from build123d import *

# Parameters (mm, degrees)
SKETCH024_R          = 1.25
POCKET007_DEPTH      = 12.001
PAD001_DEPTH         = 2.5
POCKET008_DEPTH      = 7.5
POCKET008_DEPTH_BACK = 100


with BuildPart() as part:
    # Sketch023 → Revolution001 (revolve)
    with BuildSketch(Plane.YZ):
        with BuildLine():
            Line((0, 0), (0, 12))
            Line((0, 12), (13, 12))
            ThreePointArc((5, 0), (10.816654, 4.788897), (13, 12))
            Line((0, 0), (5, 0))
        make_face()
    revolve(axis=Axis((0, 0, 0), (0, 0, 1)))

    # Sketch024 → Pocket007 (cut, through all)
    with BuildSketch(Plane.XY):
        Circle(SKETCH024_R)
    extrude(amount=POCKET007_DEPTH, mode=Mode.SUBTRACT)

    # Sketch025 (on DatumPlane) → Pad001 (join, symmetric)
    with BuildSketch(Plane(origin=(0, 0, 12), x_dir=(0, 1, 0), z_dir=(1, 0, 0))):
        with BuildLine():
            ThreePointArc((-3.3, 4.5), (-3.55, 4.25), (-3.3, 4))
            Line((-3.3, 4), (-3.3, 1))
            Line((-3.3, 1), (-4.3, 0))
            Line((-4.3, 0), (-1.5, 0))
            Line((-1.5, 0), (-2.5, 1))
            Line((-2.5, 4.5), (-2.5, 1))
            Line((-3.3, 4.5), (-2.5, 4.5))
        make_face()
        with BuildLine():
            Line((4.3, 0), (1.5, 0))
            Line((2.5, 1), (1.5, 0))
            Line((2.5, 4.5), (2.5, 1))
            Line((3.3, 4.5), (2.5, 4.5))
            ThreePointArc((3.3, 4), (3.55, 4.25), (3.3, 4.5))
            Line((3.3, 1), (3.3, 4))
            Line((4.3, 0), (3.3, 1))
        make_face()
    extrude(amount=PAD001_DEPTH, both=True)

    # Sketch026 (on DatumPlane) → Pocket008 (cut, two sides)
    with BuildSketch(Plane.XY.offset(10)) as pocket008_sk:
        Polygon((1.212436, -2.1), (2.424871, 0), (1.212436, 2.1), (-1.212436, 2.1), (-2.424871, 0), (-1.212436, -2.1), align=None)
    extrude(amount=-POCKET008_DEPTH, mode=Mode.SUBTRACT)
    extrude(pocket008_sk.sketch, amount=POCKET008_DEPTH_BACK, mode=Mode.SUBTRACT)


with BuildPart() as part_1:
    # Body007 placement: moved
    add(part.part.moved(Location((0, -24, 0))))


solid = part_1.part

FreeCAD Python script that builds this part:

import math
import FreeCAD as App
import Part
import Sketcher

V = App.Vector
Q = App.Units.Quantity


def add_polygon(sketch, points):
    """Adds a closed chain of lines whose ends are joined by coincident constraints."""
    first, n = sketch.GeometryCount, len(points)
    for a, b in zip(points, points[1:] + points[:1]):
        sketch.addGeometry(Part.LineSegment(App.Vector(*a, 0), App.Vector(*b, 0)), False)
    for i in range(n):
        sketch.addConstraint(Sketcher.Constraint("Coincident", first + i, 2, first + (i + 1) % n, 1))

doc = App.newDocument("Part")
body = doc.addObject("PartDesign::Body", "Body")

# Sketch on YZ plane
sketch1 = body.newObject("Sketcher::SketchObject", "Sketch")
sketch1.AttachmentSupport = (doc.getObject("YZ_Plane"), [""])
sketch1.MapMode = "FlatFace"
sketch1.addGeometry(Part.LineSegment(V(0, 12, 0), V(0, 0, 0)), False)
sketch1.addGeometry(Part.LineSegment(V(0, 0, 0), V(5, 0, 0)), False)
sketch1.addGeometry(Part.ArcOfCircle(Part.Circle(V(0, 12, 0), V(0, 0, 1), 13), math.radians(-67), math.radians(0)), False)
sketch1.addGeometry(Part.LineSegment(V(13, 12, 0), V(0, 12, 0)), False)
sketch1.addConstraint(Sketcher.Constraint("Coincident", 0, 2, 1, 1))
sketch1.addConstraint(Sketcher.Constraint("Coincident", 1, 2, 2, 1))
sketch1.addConstraint(Sketcher.Constraint("Coincident", 2, 2, 3, 1))
sketch1.addConstraint(Sketcher.Constraint("Coincident", 3, 2, 0, 1))
sketch1.addConstraint(Sketcher.Constraint("Vertical", 0))
sketch1.addConstraint(Sketcher.Constraint("Horizontal", 1))
sketch1.addConstraint(Sketcher.Constraint("Horizontal", 3))
sketch1.addConstraint(Sketcher.Constraint("Coincident", 0, 2, -1, 1))
sketch1.addConstraint(Sketcher.Constraint("Coincident", 3, 2, 2, 3))
sketch1.addConstraint(Sketcher.Constraint("Radius", 2, 12.999998))
sketch1.addConstraint(Sketcher.Constraint("DistanceX", 1, 1, 1, 2, 5.0))
revolution = body.newObject("PartDesign::Revolution", "Revolution")
revolution.Profile = sketch1
revolution.ReferenceAxis = (sketch1, ["V_Axis"])
revolution.Angle = 360

# Sketch on XY plane
sketch2 = body.newObject("Sketcher::SketchObject", "Sketch001")
sketch2.AttachmentSupport = (doc.getObject("XY_Plane"), [""])
sketch2.MapMode = "FlatFace"
sketch2.addGeometry(Part.Circle(V(0, 0, 0), V(0, 0, 1), 1.2), False)
sketch2.addConstraint(Sketcher.Constraint("Coincident", 0, 3, -1, 1))
sketch2.addConstraint(Sketcher.Constraint("Diameter", 0, 2.5))
pocket1 = body.newObject("PartDesign::Pocket", "Pocket")
pocket1.Profile = sketch2
pocket1.Type = "ThroughAll"
pocket1.Reversed = True

# Sketch on YZ plane
sketch3 = body.newObject("Sketcher::SketchObject", "Sketch002")
sketch3.AttachmentSupport = (doc.getObject("YZ_Plane"), [""])
sketch3.MapMode = "FlatFace"
sketch3.addGeometry(Part.ArcOfCircle(Part.Circle(V(-3.3, 16.25, 0), V(0, 0, 1), 0.25), math.radians(90), math.radians(270)), False)
sketch3.addGeometry(Part.LineSegment(V(-3.3, 16, 0), V(-3.3, 13, 0)), False)
sketch3.addGeometry(Part.LineSegment(V(-3.3, 13, 0), V(-4.3, 12, 0)), False)
sketch3.addGeometry(Part.LineSegment(V(-4.3, 12, 0), V(-1.5, 12, 0)), False)
sketch3.addGeometry(Part.LineSegment(V(-1.5, 12, 0), V(-2.5, 13, 0)), False)
sketch3.addGeometry(Part.LineSegment(V(-2.5, 13, 0), V(-2.5, 16.5, 0)), False)
sketch3.addGeometry(Part.LineSegment(V(-2.5, 16.5, 0), V(-3.3, 16.5, 0)), False)
sketch3.addGeometry(Part.LineSegment(V(1.5, 12, 0), V(4.3, 12, 0)), False)
sketch3.addGeometry(Part.LineSegment(V(4.3, 12, 0), V(3.3, 13, 0)), False)
sketch3.addGeometry(Part.LineSegment(V(3.3, 13, 0), V(3.3, 16, 0)), False)
sketch3.addGeometry(Part.ArcOfCircle(Part.Circle(V(3.3, 16.25, 0), V(0, 0, 1), 0.25), math.radians(-90), math.radians(90)), False)
sketch3.addGeometry(Part.LineSegment(V(3.3, 16.5, 0), V(2.5, 16.5, 0)), False)
sketch3.addGeometry(Part.LineSegment(V(2.5, 16.5, 0), V(2.5, 13, 0)), False)
sketch3.addGeometry(Part.LineSegment(V(2.5, 13, 0), V(1.5, 12, 0)), False)
sketch3.addConstraint(Sketcher.Constraint("Coincident", 0, 2, 1, 1))
sketch3.addConstraint(Sketcher.Constraint("Coincident", 1, 2, 2, 1))
sketch3.addConstraint(Sketcher.Constraint("Coincident", 2, 2, 3, 1))
sketch3.addConstraint(Sketcher.Constraint("Coincident", 3, 2, 4, 1))
sketch3.addConstraint(Sketcher.Constraint("Coincident", 4, 2, 5, 1))
sketch3.addConstraint(Sketcher.Constraint("Coincident", 5, 2, 6, 1))
sketch3.addConstraint(Sketcher.Constraint("Tangent", 6, 2, 0, 1))
sketch3.addConstraint(Sketcher.Constraint("Coincident", 7, 2, 8, 1))
sketch3.addConstraint(Sketcher.Constraint("Coincident", 8, 2, 9, 1))
sketch3.addConstraint(Sketcher.Constraint("Coincident", 9, 2, 10, 1))
sketch3.addConstraint(Sketcher.Constraint("Tangent", 10, 2, 11, 1))
sketch3.addConstraint(Sketcher.Constraint("Coincident", 11, 2, 12, 1))
sketch3.addConstraint(Sketcher.Constraint("Coincident", 12, 2, 13, 1))
sketch3.addConstraint(Sketcher.Constraint("Coincident", 13, 2, 7, 1))
sketch3.addConstraint(Sketcher.Constraint("Vertical", 1))
sketch3.addConstraint(Sketcher.Constraint("Horizontal", 3))
sketch3.addConstraint(Sketcher.Constraint("Vertical", 5))
sketch3.addConstraint(Sketcher.Constraint("Horizontal", 6))
sketch3.addConstraint(Sketcher.Constraint("Horizontal", 7))
sketch3.addConstraint(Sketcher.Constraint("Vertical", 9))
sketch3.addConstraint(Sketcher.Constraint("Horizontal", 11))
sketch3.addConstraint(Sketcher.Constraint("Vertical", 12))
sketch3.addConstraint(Sketcher.Constraint("Equal", 0, 10))
sketch3.addConstraint(Sketcher.Constraint("Symmetric", 0, 3, 10, 3, -2))
sketch3.addConstraint(Sketcher.Constraint("Symmetric", 2, 2, 7, 2, -2))
sketch3.addConstraint(Sketcher.Constraint("Symmetric", 1, 2, 8, 2, -2))
sketch3.addConstraint(Sketcher.Constraint("Symmetric", 4, 2, 12, 2, -2))
sketch3.addConstraint(Sketcher.Constraint("Perpendicular", 2, 4))
sketch3.addConstraint(Sketcher.Constraint("Parallel", 4, 8))
sketch3.addConstraint(Sketcher.Constraint("Perpendicular", 8, 13))
sketch3.addConstraint(Sketcher.Constraint("Horizontal", 1, 2, 4, 2))
sketch3.addConstraint(Sketcher.Constraint("Vertical", 1, 2, 6, 2))
sketch3.addConstraint(Sketcher.Constraint("DistanceY", 1, 2, 1, 1, 3.0))
sketch3.addConstraint(Sketcher.Constraint("Radius", 0, 0.25))
sketch3.addConstraint(Sketcher.Constraint("DistanceX", 3, 1, 3, 2, 2.8))
sketch3.addConstraint(Sketcher.Constraint("DistanceX", 6, 2, 6, 1, 0.8))
sketch3.addConstraint(Sketcher.Constraint("DistanceY", -1, 1, 0, 2, 16.0))
sketch3.addConstraint(Sketcher.Constraint("DistanceX", 3, 2, 13, 2, 3.0))
pad1 = body.newObject("PartDesign::Pad", "Pad")
pad1.Profile = sketch3
pad1.Length = 5
pad1.Midplane = True

# Sketch on XY plane
sketch4 = body.newObject("Sketcher::SketchObject", "Sketch003")
sketch4.AttachmentSupport = (doc.getObject("XY_Plane"), [""])
sketch4.MapMode = "FlatFace"
sketch4.AttachmentOffset = App.Placement(V(0, 0, 10), App.Rotation())
add_polygon(sketch4, [(1.2, -2.1), (2.4, 0), (1.2, 2.1), (-1.2, 2.1), (-2.4, 0), (-1.2, -2.1)])  # lines 0-5
sketch4.addConstraint(Sketcher.Constraint("Horizontal", 2))
sketch4.addConstraint(Sketcher.Constraint("Horizontal", 5))
sketch4.addConstraint(Sketcher.Constraint("Symmetric", 0, 2, 3, 2, -1, 1))
sketch4.addConstraint(Sketcher.Constraint("Symmetric", 1, 2, 4, 2, -1, 1))
sketch4.addConstraint(Sketcher.Constraint("PointOnObject", 0, 2, -1))
sketch4.addConstraint(Sketcher.Constraint("Parallel", 0, 3))
sketch4.addConstraint(Sketcher.Constraint("Vertical", 2, 2, 4, 2))
sketch4.addConstraint(Sketcher.Constraint("Angle", 0, Q("60.000012 deg")))
sketch4.addConstraint(Sketcher.Constraint("DistanceY", -1, 1, 1, 2, 2.1))
sketch4.addConstraint(Sketcher.Constraint("DistanceX", 2, 2, 2, 1, 2.424872))
pocket2 = body.newObject("PartDesign::Pocket", "Pocket001")
pocket2.Profile = sketch4
pocket2.Type = "TwoLengths"
pocket2.Length = 7.5
pocket2.Length2 = 100
body2 = doc.addObject("PartDesign::Body", "Body001")
doc.recompute()

body.Placement = App.Placement(V(0, -24, 0), App.Rotation(V(0, 0, 1), 0))
boolean = body2.newObject("PartDesign::Boolean", "Boolean")
boolean.Type = "Fuse"
boolean.addObjects([body])

doc.recompute()
